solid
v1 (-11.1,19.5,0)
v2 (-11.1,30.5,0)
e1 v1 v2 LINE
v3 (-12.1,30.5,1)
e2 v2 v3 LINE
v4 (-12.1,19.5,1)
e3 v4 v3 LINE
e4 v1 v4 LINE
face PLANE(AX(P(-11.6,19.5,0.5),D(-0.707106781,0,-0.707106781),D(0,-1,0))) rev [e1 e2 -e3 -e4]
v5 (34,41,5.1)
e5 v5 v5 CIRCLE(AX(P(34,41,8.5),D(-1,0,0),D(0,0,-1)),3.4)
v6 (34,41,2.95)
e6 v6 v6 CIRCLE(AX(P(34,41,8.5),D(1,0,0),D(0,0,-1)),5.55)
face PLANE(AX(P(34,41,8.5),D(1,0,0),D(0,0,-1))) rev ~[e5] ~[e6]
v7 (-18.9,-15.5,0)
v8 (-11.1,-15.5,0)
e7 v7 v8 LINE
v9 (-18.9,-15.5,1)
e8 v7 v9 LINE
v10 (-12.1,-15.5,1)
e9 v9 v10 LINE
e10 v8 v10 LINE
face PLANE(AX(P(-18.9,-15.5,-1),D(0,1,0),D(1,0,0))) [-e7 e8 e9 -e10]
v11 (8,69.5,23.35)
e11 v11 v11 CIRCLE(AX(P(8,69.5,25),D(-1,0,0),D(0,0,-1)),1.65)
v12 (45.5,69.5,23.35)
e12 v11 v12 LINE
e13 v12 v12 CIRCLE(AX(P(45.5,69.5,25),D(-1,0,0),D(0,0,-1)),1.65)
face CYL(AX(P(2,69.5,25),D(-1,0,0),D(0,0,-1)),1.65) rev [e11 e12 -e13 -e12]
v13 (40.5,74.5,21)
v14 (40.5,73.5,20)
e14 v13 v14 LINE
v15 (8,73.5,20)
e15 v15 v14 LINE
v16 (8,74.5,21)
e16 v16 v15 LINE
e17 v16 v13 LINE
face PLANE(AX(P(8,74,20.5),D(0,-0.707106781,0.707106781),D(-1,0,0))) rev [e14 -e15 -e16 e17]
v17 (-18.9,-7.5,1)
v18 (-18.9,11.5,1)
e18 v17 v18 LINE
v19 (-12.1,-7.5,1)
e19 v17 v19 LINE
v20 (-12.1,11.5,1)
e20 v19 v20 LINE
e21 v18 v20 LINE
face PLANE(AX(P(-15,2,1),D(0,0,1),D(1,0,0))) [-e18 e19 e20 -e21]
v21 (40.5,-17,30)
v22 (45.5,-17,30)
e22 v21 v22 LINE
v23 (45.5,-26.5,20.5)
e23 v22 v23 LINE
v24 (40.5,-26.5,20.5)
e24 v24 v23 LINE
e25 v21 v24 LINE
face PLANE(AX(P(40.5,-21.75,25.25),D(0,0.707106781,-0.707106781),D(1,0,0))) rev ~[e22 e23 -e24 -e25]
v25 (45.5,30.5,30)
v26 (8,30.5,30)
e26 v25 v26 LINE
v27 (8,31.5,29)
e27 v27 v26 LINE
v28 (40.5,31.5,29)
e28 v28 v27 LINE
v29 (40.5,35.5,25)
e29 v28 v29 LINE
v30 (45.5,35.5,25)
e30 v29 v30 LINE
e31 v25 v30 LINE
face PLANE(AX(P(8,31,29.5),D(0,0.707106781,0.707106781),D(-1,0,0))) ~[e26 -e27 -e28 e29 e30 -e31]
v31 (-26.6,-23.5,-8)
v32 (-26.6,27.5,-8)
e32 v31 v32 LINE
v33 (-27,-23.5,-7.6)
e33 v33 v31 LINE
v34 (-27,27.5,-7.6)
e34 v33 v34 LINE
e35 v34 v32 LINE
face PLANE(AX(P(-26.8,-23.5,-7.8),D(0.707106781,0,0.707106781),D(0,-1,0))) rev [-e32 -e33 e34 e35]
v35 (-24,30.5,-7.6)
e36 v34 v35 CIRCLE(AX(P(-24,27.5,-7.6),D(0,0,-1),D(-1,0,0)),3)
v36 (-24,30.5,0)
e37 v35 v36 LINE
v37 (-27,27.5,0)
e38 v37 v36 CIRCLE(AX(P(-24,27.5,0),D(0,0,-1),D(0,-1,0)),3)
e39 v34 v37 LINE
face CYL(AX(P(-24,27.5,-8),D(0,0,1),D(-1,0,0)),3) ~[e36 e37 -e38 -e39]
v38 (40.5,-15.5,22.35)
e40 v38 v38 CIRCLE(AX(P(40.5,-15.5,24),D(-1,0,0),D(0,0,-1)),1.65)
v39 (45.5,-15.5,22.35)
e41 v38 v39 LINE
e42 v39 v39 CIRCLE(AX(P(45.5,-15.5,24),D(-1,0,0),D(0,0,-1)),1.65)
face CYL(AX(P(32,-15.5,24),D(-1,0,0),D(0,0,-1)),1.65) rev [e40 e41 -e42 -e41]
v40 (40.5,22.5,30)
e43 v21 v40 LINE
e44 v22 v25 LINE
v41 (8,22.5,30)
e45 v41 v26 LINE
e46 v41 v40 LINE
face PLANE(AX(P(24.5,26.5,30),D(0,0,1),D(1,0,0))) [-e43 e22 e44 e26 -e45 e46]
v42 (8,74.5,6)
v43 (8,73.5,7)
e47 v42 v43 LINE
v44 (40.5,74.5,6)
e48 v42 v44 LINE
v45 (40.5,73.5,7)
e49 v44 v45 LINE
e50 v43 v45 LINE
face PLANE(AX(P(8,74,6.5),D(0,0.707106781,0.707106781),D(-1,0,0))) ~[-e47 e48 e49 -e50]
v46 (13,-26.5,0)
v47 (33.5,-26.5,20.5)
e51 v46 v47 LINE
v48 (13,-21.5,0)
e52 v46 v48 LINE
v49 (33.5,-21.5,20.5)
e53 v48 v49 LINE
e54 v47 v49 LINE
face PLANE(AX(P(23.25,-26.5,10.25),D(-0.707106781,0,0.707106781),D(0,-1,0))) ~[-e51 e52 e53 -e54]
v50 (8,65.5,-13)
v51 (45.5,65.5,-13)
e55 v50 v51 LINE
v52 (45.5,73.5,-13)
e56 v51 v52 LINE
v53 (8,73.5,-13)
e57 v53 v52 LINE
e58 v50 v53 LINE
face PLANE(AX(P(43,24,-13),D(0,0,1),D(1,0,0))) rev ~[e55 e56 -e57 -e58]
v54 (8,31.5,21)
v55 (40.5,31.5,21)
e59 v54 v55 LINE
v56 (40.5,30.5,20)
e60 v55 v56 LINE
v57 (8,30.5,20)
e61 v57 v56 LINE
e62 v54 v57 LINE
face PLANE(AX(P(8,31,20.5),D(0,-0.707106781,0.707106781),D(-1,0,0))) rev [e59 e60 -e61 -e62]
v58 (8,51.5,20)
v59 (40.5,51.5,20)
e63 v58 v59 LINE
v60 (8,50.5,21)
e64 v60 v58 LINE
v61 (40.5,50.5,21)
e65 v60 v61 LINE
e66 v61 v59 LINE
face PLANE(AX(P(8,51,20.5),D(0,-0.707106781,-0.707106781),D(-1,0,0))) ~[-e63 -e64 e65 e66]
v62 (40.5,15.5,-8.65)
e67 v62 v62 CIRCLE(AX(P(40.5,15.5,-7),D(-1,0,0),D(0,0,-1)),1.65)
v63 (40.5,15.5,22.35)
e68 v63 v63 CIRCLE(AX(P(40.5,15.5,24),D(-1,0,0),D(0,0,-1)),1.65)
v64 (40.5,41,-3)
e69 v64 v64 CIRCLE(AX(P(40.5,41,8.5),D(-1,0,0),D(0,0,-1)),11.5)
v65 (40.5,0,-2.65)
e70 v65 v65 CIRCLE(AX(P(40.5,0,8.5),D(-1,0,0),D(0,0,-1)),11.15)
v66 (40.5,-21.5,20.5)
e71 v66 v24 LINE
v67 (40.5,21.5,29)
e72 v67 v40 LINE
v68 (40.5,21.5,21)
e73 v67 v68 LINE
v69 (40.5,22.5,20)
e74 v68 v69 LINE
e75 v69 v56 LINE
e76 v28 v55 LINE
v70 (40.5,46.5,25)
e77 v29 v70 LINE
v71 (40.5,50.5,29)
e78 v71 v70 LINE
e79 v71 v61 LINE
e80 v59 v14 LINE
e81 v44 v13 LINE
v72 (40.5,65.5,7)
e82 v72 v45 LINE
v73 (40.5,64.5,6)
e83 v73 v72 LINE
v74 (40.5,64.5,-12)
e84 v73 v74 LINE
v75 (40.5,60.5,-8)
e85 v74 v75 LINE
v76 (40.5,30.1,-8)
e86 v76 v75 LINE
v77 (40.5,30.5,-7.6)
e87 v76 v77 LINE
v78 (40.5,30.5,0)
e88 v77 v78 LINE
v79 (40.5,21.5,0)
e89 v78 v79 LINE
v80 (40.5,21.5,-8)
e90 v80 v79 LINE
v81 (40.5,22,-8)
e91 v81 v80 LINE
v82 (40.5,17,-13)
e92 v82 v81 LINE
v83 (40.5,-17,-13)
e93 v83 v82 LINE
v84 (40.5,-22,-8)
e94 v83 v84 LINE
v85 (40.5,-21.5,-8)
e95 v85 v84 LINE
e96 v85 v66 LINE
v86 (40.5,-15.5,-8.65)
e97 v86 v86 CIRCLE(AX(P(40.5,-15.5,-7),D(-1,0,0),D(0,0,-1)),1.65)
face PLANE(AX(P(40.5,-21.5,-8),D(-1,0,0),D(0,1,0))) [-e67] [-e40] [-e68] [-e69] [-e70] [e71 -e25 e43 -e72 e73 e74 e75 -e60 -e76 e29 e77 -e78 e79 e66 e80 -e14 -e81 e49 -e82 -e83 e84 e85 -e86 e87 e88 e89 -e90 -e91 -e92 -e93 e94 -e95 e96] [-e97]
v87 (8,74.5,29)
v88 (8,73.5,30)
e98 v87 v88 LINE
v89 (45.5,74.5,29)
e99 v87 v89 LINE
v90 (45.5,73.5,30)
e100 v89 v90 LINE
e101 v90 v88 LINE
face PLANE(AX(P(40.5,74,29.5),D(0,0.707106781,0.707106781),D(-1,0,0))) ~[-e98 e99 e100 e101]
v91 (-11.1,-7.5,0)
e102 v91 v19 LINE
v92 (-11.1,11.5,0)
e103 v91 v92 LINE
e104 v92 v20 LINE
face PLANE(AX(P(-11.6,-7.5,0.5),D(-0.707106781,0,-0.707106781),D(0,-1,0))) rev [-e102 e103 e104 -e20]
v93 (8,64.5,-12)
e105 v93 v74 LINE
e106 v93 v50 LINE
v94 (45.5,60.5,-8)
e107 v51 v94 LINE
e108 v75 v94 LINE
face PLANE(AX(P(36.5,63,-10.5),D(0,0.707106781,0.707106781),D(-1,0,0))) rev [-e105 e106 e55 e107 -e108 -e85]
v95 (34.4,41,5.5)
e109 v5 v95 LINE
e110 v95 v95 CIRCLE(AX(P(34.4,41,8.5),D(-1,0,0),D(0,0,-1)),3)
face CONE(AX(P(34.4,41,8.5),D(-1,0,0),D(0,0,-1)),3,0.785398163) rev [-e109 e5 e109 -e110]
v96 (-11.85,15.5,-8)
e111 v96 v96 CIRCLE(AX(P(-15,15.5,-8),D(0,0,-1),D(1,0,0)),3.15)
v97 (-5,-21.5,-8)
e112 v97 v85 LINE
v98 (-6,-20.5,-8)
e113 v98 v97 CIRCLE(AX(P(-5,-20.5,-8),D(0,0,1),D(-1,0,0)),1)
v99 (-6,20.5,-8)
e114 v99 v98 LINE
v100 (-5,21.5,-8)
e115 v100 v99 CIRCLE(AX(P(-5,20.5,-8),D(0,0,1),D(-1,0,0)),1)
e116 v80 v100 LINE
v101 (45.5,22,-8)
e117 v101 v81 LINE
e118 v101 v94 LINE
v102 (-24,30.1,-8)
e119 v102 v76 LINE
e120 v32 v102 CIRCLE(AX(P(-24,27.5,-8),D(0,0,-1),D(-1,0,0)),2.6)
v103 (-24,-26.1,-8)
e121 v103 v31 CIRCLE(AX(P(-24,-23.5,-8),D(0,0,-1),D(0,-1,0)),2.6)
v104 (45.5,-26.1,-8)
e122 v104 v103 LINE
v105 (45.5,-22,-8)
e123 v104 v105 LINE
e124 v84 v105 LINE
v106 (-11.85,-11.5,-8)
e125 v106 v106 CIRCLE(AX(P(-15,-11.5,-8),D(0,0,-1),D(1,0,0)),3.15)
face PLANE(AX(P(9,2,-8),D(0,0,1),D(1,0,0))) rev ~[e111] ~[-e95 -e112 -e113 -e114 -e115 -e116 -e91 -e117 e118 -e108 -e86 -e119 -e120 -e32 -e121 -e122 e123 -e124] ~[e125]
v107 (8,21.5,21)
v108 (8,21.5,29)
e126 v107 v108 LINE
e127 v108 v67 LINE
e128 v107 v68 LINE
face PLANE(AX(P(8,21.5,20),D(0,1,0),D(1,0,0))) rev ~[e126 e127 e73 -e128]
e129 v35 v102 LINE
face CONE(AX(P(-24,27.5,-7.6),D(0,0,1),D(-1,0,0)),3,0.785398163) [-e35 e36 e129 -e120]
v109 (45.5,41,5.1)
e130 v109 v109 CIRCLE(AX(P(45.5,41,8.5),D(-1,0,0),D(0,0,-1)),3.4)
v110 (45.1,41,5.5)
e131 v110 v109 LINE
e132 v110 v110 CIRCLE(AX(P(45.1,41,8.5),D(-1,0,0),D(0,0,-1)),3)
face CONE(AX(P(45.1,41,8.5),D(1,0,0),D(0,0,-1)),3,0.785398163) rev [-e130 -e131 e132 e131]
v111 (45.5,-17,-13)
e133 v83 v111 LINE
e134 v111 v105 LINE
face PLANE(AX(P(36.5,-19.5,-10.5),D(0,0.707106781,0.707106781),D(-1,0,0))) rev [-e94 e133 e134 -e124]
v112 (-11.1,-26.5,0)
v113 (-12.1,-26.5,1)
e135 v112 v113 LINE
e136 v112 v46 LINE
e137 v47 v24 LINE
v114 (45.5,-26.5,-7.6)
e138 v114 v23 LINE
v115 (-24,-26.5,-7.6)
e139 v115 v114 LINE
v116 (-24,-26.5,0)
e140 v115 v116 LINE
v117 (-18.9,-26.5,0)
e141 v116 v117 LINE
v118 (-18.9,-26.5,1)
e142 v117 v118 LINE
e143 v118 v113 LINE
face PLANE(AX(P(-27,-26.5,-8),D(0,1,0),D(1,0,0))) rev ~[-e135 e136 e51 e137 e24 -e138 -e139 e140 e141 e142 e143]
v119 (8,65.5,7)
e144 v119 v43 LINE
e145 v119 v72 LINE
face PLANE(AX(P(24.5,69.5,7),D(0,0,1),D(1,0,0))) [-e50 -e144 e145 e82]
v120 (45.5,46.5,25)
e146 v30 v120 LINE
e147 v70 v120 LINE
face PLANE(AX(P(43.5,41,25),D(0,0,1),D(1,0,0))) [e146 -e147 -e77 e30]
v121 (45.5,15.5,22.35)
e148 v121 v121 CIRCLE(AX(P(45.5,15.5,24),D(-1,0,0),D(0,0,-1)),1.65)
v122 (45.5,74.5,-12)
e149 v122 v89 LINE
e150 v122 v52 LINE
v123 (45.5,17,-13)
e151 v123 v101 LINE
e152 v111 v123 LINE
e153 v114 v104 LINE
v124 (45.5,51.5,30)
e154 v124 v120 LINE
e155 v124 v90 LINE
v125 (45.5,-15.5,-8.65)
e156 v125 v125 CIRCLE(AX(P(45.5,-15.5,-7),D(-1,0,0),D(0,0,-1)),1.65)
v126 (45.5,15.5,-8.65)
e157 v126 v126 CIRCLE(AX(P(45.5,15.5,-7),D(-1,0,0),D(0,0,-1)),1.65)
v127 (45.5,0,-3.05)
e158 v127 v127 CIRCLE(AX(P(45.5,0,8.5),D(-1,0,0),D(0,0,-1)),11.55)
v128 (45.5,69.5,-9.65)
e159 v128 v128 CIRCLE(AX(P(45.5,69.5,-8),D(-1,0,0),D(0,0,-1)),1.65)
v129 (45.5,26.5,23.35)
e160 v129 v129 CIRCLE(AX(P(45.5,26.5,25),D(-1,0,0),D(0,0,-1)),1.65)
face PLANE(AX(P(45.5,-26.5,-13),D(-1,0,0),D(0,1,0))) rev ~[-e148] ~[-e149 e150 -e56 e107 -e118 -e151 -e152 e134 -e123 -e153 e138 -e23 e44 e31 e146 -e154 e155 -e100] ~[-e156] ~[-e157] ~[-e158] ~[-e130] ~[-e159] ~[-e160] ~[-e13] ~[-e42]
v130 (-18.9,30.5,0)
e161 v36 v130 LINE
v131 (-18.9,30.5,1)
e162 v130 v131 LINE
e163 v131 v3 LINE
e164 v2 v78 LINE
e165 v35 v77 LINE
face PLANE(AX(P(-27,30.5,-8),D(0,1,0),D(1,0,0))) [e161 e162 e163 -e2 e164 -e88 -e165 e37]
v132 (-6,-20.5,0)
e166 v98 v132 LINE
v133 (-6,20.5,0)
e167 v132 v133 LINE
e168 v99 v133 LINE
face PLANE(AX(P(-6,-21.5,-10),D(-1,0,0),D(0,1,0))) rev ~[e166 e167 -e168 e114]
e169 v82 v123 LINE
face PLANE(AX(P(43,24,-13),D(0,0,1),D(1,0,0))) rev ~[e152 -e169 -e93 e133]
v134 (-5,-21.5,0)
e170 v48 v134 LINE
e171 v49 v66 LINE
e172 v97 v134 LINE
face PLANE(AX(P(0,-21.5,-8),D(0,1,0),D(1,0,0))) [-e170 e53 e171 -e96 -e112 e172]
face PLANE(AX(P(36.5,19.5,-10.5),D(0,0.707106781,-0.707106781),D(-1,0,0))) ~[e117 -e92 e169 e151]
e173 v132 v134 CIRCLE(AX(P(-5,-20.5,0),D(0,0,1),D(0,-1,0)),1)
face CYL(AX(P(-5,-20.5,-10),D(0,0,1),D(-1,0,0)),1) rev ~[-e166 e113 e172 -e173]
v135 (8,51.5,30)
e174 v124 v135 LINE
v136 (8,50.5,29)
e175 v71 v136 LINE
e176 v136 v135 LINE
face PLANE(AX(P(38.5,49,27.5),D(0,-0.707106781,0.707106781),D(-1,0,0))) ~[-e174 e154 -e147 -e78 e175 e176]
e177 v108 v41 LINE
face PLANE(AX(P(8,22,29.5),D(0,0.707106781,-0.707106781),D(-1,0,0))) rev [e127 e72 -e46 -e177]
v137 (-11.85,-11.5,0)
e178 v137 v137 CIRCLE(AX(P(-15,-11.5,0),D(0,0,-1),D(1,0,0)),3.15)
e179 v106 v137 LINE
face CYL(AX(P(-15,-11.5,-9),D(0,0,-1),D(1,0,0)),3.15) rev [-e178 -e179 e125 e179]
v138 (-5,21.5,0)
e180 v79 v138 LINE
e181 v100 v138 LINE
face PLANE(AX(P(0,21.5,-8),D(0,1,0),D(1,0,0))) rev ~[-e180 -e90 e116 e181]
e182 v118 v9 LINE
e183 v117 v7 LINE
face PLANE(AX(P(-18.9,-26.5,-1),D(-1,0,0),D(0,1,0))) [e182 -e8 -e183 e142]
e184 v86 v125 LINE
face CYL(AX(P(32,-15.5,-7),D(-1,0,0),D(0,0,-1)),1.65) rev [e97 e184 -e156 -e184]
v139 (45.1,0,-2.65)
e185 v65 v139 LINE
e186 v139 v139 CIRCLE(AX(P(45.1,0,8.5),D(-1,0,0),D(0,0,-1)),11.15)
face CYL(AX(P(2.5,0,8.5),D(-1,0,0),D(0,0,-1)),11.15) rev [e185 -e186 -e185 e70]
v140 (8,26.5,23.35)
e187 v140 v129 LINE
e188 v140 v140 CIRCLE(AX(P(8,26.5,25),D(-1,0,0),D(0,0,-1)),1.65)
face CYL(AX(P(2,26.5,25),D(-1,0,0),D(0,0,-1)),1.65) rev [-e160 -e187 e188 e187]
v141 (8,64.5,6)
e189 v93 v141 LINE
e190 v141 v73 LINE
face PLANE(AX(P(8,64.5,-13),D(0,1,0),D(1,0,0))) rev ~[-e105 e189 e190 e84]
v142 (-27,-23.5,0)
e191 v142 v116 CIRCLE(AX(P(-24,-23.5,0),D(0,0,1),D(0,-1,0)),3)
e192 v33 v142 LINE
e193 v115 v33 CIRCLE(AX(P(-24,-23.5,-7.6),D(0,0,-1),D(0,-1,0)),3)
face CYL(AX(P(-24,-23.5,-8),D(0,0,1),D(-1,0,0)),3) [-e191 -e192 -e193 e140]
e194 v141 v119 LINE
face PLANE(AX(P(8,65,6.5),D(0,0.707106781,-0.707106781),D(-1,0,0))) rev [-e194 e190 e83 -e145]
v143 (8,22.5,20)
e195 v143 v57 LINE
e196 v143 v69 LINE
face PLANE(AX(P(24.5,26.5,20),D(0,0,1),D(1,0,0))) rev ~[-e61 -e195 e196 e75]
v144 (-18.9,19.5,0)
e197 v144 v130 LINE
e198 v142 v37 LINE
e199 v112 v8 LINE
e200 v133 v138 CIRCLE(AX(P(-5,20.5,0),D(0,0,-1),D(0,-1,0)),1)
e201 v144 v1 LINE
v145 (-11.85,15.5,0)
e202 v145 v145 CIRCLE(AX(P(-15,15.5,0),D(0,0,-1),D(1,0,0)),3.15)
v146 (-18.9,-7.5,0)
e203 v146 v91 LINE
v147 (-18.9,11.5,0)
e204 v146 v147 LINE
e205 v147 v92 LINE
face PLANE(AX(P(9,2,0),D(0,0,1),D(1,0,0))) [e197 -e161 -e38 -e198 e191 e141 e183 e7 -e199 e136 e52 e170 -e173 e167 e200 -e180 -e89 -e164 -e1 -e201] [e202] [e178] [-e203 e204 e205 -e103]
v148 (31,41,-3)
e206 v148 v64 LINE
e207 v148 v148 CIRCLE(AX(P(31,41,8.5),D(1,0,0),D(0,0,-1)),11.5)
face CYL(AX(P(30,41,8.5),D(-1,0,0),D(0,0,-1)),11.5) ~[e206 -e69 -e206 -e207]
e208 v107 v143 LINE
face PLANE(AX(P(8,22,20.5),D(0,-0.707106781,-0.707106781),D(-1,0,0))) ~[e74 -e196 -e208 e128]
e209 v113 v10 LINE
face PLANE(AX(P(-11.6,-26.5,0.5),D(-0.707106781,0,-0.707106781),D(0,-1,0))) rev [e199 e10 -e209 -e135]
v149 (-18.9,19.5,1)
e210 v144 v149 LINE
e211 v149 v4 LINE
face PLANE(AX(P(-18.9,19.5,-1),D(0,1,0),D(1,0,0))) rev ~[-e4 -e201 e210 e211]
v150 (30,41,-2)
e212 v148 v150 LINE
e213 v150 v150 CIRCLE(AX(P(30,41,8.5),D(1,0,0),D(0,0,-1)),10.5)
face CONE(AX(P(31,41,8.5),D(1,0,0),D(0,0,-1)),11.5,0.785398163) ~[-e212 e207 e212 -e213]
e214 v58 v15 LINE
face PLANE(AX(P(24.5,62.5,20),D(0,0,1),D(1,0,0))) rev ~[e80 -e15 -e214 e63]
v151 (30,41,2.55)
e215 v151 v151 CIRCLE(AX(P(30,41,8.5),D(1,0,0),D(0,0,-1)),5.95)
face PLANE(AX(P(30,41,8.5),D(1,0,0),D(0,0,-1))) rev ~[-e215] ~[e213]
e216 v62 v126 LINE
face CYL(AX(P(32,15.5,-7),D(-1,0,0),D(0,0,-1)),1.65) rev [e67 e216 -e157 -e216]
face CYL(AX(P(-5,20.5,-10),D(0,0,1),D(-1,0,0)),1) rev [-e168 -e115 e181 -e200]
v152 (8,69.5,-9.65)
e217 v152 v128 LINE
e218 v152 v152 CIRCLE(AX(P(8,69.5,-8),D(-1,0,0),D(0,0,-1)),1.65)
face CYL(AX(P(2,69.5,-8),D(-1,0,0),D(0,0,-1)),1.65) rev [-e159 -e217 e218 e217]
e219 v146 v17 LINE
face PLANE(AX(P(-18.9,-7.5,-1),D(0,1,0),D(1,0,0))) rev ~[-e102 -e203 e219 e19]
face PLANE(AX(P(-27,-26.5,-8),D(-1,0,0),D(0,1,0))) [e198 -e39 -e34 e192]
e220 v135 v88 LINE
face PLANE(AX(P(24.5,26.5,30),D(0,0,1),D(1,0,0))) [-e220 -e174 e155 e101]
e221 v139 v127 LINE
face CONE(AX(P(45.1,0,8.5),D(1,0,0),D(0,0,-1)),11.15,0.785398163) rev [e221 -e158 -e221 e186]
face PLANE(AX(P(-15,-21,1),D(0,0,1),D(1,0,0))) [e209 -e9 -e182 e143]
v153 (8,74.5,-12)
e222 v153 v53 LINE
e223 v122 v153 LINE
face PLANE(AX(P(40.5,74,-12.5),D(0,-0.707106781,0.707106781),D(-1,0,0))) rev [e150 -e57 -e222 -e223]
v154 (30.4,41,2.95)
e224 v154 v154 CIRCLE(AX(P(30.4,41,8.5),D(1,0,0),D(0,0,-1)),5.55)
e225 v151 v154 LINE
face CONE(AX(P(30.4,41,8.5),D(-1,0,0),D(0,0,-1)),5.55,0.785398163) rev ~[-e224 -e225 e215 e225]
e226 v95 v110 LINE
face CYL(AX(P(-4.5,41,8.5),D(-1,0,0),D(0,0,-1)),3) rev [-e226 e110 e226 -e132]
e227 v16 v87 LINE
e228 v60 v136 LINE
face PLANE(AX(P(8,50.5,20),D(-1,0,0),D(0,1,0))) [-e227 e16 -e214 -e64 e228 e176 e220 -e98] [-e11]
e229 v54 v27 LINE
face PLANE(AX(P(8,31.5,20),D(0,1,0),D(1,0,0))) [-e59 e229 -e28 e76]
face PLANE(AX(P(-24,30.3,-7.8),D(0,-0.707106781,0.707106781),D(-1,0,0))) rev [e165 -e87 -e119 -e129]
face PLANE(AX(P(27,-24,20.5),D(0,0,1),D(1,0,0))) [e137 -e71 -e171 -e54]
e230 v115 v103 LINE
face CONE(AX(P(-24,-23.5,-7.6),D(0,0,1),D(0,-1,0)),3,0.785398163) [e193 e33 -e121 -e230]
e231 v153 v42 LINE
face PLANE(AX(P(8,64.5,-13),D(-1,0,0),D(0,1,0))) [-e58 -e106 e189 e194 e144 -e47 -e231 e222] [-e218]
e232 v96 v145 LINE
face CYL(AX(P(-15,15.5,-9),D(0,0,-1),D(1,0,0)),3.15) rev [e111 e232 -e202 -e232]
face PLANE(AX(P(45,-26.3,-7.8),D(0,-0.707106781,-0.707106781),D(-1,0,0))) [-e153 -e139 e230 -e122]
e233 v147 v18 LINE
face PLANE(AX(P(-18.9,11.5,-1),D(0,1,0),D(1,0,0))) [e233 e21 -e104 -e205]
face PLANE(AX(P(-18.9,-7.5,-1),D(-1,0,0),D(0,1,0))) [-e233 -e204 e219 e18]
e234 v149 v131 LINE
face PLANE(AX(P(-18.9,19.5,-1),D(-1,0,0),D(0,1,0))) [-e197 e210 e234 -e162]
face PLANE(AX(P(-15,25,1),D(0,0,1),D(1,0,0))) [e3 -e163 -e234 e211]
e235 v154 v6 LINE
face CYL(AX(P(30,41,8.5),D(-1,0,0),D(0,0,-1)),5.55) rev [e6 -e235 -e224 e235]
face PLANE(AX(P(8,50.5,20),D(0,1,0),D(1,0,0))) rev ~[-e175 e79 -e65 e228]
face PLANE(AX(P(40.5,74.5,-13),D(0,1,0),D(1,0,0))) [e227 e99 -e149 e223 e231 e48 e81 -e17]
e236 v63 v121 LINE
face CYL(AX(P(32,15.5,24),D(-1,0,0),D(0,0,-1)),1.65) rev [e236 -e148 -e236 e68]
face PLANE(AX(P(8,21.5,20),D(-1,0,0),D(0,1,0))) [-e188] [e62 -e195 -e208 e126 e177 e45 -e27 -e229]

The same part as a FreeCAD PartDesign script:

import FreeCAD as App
import Part
import Sketcher

V = App.Vector


def edges_at(feature, points):
    """Names of the edges that pass closest to the given points."""
    edges = feature.Shape.Edges
    near = lambda p: min(range(len(edges)), key=lambda i: edges[i].distToShape(Part.Vertex(*p))[0])
    return sorted({f"Edge{near(p) + 1}" for p in points})


def add_polygon(sketch, points):
    """Adds a closed chain of lines whose ends are joined by coincident constraints."""
    first, n = sketch.GeometryCount, len(points)
    for a, b in zip(points, points[1:] + points[:1]):
        sketch.addGeometry(Part.LineSegment(App.Vector(*a, 0), App.Vector(*b, 0)), False)
    for i in range(n):
        sketch.addConstraint(Sketcher.Constraint("Coincident", first + i, 2, first + (i + 1) % n, 1))

doc = App.newDocument("Part")
body = doc.addObject("PartDesign::Body", "Body")

# Sketch on XY plane
sketch1 = body.newObject("Sketcher::SketchObject", "Sketch")
sketch1.AttachmentSupport = (doc.getObject("XY_Plane"), [""])
sketch1.MapMode = "FlatFace"
sketch1.AttachmentOffset = App.Placement(V(0, 0, -10), App.Rotation())
add_polygon(sketch1, [(-6, 22), (-6, -22), (8, -22), (8, 22)])  # lines 0-3
sketch1.addConstraint([
    Sketcher.Constraint("Vertical", 0),
    Sketcher.Constraint("Horizontal", 1),
    Sketcher.Constraint("Vertical", 2),
    Sketcher.Constraint("Horizontal", 3),
    Sketcher.Constraint("DistanceX", 1, 1, 1, 2, 14.0),
    Sketcher.Constraint("DistanceY", 0, 2, 0, 1, 43.0),
    Sketcher.Constraint("DistanceX", 0, 2, -1, 1, 6.0),
    Sketcher.Constraint("DistanceY", 0, 2, -1, 1, 21.5),
])
pad1 = body.newObject("PartDesign::Pad", "Pad")
pad1.Profile = sketch1
pad1.Length = 10
doc.recompute()

fillet = body.newObject("PartDesign::Fillet", "Fillet")
fillet.Base = (pad1, edges_at(pad1, [(-6, -21.5, -5), (-6, 21.5, -5)]))
fillet.Radius = 1
body2 = doc.addObject("PartDesign::Body", "Body001")

# Sketch on XY plane
sketch2 = body2.newObject("Sketcher::SketchObject", "Sketch001")
sketch2.AttachmentSupport = (doc.getObject("XY_Plane001"), [""])
sketch2.MapMode = "FlatFace"
sketch2.AttachmentOffset = App.Placement(V(0, 0, 35), App.Rotation())
add_polygon(sketch2, [(38, 52), (38, 30), (48, 30), (48, 52)])  # lines 0-3
sketch2.addConstraint([
    Sketcher.Constraint("Vertical", 0),
    Sketcher.Constraint("Horizontal", 1),
    Sketcher.Constraint("Vertical", 2),
    Sketcher.Constraint("Horizontal", 3),
    Sketcher.Constraint("DistanceX", 1, 1, 1, 2, 10.0),
    Sketcher.Constraint("DistanceY", 0, 2, 0, 1, 21.0),
    Sketcher.Constraint("DistanceX", -1, 1, 0, 2, 38.5),
    Sketcher.Constraint("DistanceY", -1, 1, 0, 2, 30.5),
])
pad2 = body2.newObject("PartDesign::Pad", "Pad001")
pad2.Profile = sketch2
pad2.Length = 10
doc.recompute()

chamfer = body2.newObject("PartDesign::Chamfer", "Chamfer")
chamfer.Base = (pad2, edges_at(pad2, [(43.5, 30.5, 35), (43.5, 51.5, 35)]))
chamfer.Size = 5
body3 = doc.addObject("PartDesign::Body", "Body002")
doc.recompute()

body2.Placement = App.Placement(V(0, 0, -10), App.Rotation(V(0, 0, 1), 0))
boolean = body3.newObject("PartDesign::Boolean", "Boolean")
boolean.Type = "Fuse"
boolean.addObjects([body2])
body4 = doc.addObject("PartDesign::Body", "Body003")

# Sketch on YZ plane
sketch3 = body4.newObject("Sketcher::SketchObject", "Sketch002")
sketch3.AttachmentSupport = (doc.getObject("YZ_Plane003"), [""])
sketch3.MapMode = "FlatFace"
sketch3.AttachmentOffset = App.Placement(V(0, 0, 2), App.Rotation())
sketch3.addGeometry(Part.Circle(V(26.5, 25, 0), V(0, 0, 1), 1.6), False)
sketch3.addConstraint([
    Sketcher.Constraint("Diameter", 0, 3.3),
    Sketcher.Constraint("DistanceY", -1, 1, 0, 3, 25.0),
    Sketcher.Constraint("DistanceX", -1, 1, 0, 3, 26.5),
])
pad3 = body4.newObject("PartDesign::Pad", "Pad002")
pad3.Profile = sketch3
pad3.Length = 110
body5 = doc.addObject("PartDesign::Body", "Body004")

# Sketch on YZ plane
sketch4 = body5.newObject("Sketcher::SketchObject", "Sketch003")
sketch4.AttachmentSupport = (doc.getObject("YZ_Plane004"), [""])
sketch4.MapMode = "FlatFace"
sketch4.AttachmentOffset = App.Placement(V(0, 0, 2), App.Rotation())
sketch4.addGeometry(Part.Circle(V(69.5, 25, 0), V(0, 0, 1), 1.6), False)
sketch4.addConstraint([
    Sketcher.Constraint("Diameter", 0, 3.3),
    Sketcher.Constraint("DistanceY", -1, 1, 0, 3, 25.0),
    Sketcher.Constraint("DistanceX", -1, 1, 0, 3, 69.5),
])
pad4 = body5.newObject("PartDesign::Pad", "Pad003")
pad4.Profile = sketch4
pad4.Length = 110
body6 = doc.addObject("PartDesign::Body", "Body005")
body6.AllowCompound = True

# Sketch on YZ plane
sketch5 = body6.newObject("Sketcher::SketchObject", "Sketch004")
sketch5.AttachmentSupport = (doc.getObject("YZ_Plane005"), [""])
sketch5.MapMode = "FlatFace"
sketch5.AttachmentOffset = App.Placement(V(0, 0, 2), App.Rotation())
sketch5.addGeometry(Part.Circle(V(69.5, -8, 0), V(0, 0, 1), 1.6), False)
sketch5.addConstraint([
    Sketcher.Constraint("Diameter", 0, 3.3),
    Sketcher.Constraint("DistanceY", 0, 3, -1, 1, 8.0),
    Sketcher.Constraint("DistanceX", -1, 1, 0, 3, 69.5),
])
pad5 = body6.newObject("PartDesign::Pad", "Pad004")
pad5.Profile = sketch5
pad5.Length = 110
doc.recompute()

boolean2 = body6.newObject("PartDesign::Boolean", "Boolean001")
boolean2.Type = "Fuse"
boolean2.addObjects([body4])
doc.recompute()

boolean3 = body6.newObject("PartDesign::Boolean", "Boolean002")
boolean3.Type = "Fuse"
boolean3.addObjects([body5])
body7 = doc.addObject("PartDesign::Body", "Body006")

# Sketch on XY plane
sketch6 = body7.newObject("Sketcher::SketchObject", "Sketch005")
sketch6.AttachmentSupport = (doc.getObject("XY_Plane006"), [""])
sketch6.MapMode = "FlatFace"
sketch6.AttachmentOffset = App.Placement(V(0, 0, 20), App.Rotation())
add_polygon(sketch6, [(8, 74), (8, 50), (41, 50), (41, 74)])  # lines 0-3
sketch6.addConstraint([
    Sketcher.Constraint("Vertical", 0),
    Sketcher.Constraint("Horizontal", 1),
    Sketcher.Constraint("Vertical", 2),
    Sketcher.Constraint("Horizontal", 3),
    Sketcher.Constraint("DistanceX", 1, 1, 1, 2, 33.0),
    Sketcher.Constraint("DistanceY", 0, 2, 0, 1, 24.0),
    Sketcher.Constraint("DistanceX", -1, 1, 0, 2, 8.0),
    Sketcher.Constraint("DistanceY", -1, 1, 0, 2, 50.5),
])
pad6 = body7.newObject("PartDesign::Pad", "Pad005")
pad6.Profile = sketch6
pad6.Length = 10
doc.recompute()

chamfer2 = body7.newObject("PartDesign::Chamfer", "Chamfer001")
chamfer2.Base = (pad6, edges_at(pad6, [
    (24.5, 50.5, 20),
    (24.5, 50.5, 30),
    (24.5, 74.5, 20),
    (24.5, 74.5, 30),
]))
chamfer2.Size = 1
body8 = doc.addObject("PartDesign::Body", "Body007")

# Sketch on XY plane
sketch7 = body8.newObject("Sketcher::SketchObject", "Sketch006")
sketch7.AttachmentSupport = (doc.getObject("XY_Plane007"), [""])
sketch7.MapMode = "FlatFace"
sketch7.AttachmentOffset = App.Placement(V(0, 0, 20), App.Rotation())
add_polygon(sketch7, [(8, 32), (8, 22), (41, 22), (41, 32)])  # lines 0-3
sketch7.addConstraint([
    Sketcher.Constraint("Vertical", 0),
    Sketcher.Constraint("Horizontal", 1),
    Sketcher.Constraint("Vertical", 2),
    Sketcher.Constraint("Horizontal", 3),
    Sketcher.Constraint("DistanceX", 1, 1, 1, 2, 33.0),
    Sketcher.Constraint("DistanceY", 0, 2, 0, 1, 10.0),
    Sketcher.Constraint("DistanceX", -1, 1, 0, 2, 8.0),
    Sketcher.Constraint("DistanceY", -1, 1, 0, 2, 21.5),
])
pad7 = body8.newObject("PartDesign::Pad", "Pad006")
pad7.Profile = sketch7
pad7.Length = 10
doc.recompute()

chamfer3 = body8.newObject("PartDesign::Chamfer", "Chamfer002")
chamfer3.Base = (pad7, edges_at(pad7, [
    (24.5, 21.5, 20),
    (24.5, 21.5, 30),
    (24.5, 31.5, 20),
    (24.5, 31.5, 30),
]))
chamfer3.Size = 1
body9 = doc.addObject("PartDesign::Body", "Body008")
body9.AllowCompound = True

# Sketch on XY plane
sketch8 = body9.newObject("Sketcher::SketchObject", "Sketch007")
sketch8.AttachmentSupport = (doc.getObject("XY_Plane008"), [""])
sketch8.MapMode = "FlatFace"
sketch8.AttachmentOffset = App.Placement(V(0, 0, -13), App.Rotation())
add_polygon(sketch8, [(8, 74), (8, 64), (41, 64), (41, 74)])  # lines 0-3
sketch8.addConstraint([
    Sketcher.Constraint("Vertical", 0),
    Sketcher.Constraint("Horizontal", 1),
    Sketcher.Constraint("Vertical", 2),
    Sketcher.Constraint("Horizontal", 3),
    Sketcher.Constraint("DistanceX", 1, 1, 1, 2, 33.0),
    Sketcher.Constraint("DistanceY", 0, 2, 0, 1, 10.0),
    Sketcher.Constraint("DistanceX", -1, 1, 0, 2, 8.0),
    Sketcher.Constraint("DistanceY", -1, 1, 0, 2, 64.5),
])
pad8 = body9.newObject("PartDesign::Pad", "Pad007")
pad8.Profile = sketch8
pad8.Length = 20
doc.recompute()

chamfer4 = body9.newObject("PartDesign::Chamfer", "Chamfer003")
chamfer4.Base = (pad8, edges_at(pad8, [
    (24.5, 64.5, -13),
    (24.5, 64.5, 7),
    (24.5, 74.5, -13),
    (24.5, 74.5, 7),
]))
chamfer4.Size = 1
doc.recompute()

boolean4 = body9.newObject("PartDesign::Boolean", "Boolean003")
boolean4.Type = "Fuse"
boolean4.addObjects([body7])
doc.recompute()

boolean5 = body9.newObject("PartDesign::Boolean", "Boolean004")
boolean5.Type = "Fuse"
boolean5.addObjects([body8])
body10 = doc.addObject("PartDesign::Body", "Body009")

# Sketch on YZ plane
sketch9 = body10.newObject("Sketcher::SketchObject", "Sketch008")
sketch9.AttachmentSupport = (doc.getObject("YZ_Plane009"), [""])
sketch9.MapMode = "FlatFace"
sketch9.AttachmentOffset = App.Placement(V(0, 0, -4.5), App.Rotation())
sketch9.addGeometry(Part.Circle(V(41, 8.5, 0), V(0, 0, 1), 3), False)
sketch9.addConstraint([
    Sketcher.Constraint("Diameter", 0, 6.0),
    Sketcher.Constraint("DistanceX", -1, 1, 0, 3, 41.0),
    Sketcher.Constraint("DistanceY", -1, 1, 0, 3, 8.5),
])
pad9 = body10.newObject("PartDesign::Pad", "Pad008")
pad9.Profile = sketch9
pad9.Length = 83
body11 = doc.addObject("PartDesign::Body", "Body010")

# Sketch on YZ plane
sketch10 = body11.newObject("Sketcher::SketchObject", "Sketch009")
sketch10.AttachmentSupport = (doc.getObject("YZ_Plane010"), [""])
sketch10.MapMode = "FlatFace"
sketch10.AttachmentOffset = App.Placement(V(0, 0, 30), App.Rotation())
sketch10.addGeometry(Part.Circle(V(41, 8, 0), V(0, 0, 1), 6), False)
sketch10.addConstraint([
    Sketcher.Constraint("Diameter", 0, 11.1),
    Sketcher.Constraint("DistanceX", -1, 1, 0, 3, 41.0),
    Sketcher.Constraint("DistanceY", -1, 1, 0, 3, 8.5),
])
pad10 = body11.newObject("PartDesign::Pad", "Pad009")
pad10.Profile = sketch10
pad10.Length = 4
body12 = doc.addObject("PartDesign::Body", "Body011")

# Sketch on YZ plane
sketch11 = body12.newObject("Sketcher::SketchObject", "Sketch010")
sketch11.AttachmentSupport = (doc.getObject("YZ_Plane011"), [""])
sketch11.MapMode = "FlatFace"
sketch11.AttachmentOffset = App.Placement(V(0, 0, 30), App.Rotation())
sketch11.addGeometry(Part.Circle(V(41, 8, 0), V(0, 0, 1), 12), False)
sketch11.addConstraint([
    Sketcher.Constraint("Diameter", 0, 23.0),
    Sketcher.Constraint("DistanceX", -1, 1, 0, 3, 41.0),
    Sketcher.Constraint("DistanceY", -1, 1, 0, 3, 8.5),
])
pad11 = body12.newObject("PartDesign::Pad", "Pad010")
pad11.Profile = sketch11
pad11.Length = 12
doc.recompute()

chamfer5 = body12.newObject("PartDesign::Chamfer", "Chamfer004")
chamfer5.Base = (pad11, edges_at(pad11, [(30, 41, 20)]))
chamfer5.Size = 1
doc.recompute()

boolean6 = body12.newObject("PartDesign::Boolean", "Boolean005")
boolean6.Type = "Cut"
boolean6.addObjects([body11])
doc.recompute()

chamfer6 = body12.newObject("PartDesign::Chamfer", "Chamfer005")
chamfer6.Base = (boolean6, edges_at(boolean6, [(30, 41, 14.05)]))
chamfer6.Size = 0.4
body13 = doc.addObject("PartDesign::Body", "Body012")

# Sketch on YZ plane
sketch12 = body13.newObject("Sketcher::SketchObject", "Sketch011")
sketch12.AttachmentSupport = (doc.getObject("YZ_Plane012"), [""])
sketch12.MapMode = "FlatFace"
sketch12.AttachmentOffset = App.Placement(V(0, 0, 32), App.Rotation())
sketch12.addGeometry(Part.Circle(V(-15.5, -7, 0), V(0, 0, 1), 1.6), False)
sketch12.addConstraint([
    Sketcher.Constraint("Diameter", 0, 3.3),
    Sketcher.Constraint("DistanceY", 0, 3, -1, 1, 7.0),
    Sketcher.Constraint("DistanceX", 0, 3, -1, 1, 15.5),
])
pad12 = body13.newObject("PartDesign::Pad", "Pad011")
pad12.Profile = sketch12
pad12.Length = 30
body14 = doc.addObject("PartDesign::Body", "Body013")

# Sketch on YZ plane
sketch13 = body14.newObject("Sketcher::SketchObject", "Sketch012")
sketch13.AttachmentSupport = (doc.getObject("YZ_Plane013"), [""])
sketch13.MapMode = "FlatFace"
sketch13.AttachmentOffset = App.Placement(V(0, 0, 32), App.Rotation())
sketch13.addGeometry(Part.Circle(V(-15.5, 24, 0), V(0, 0, 1), 1.6), False)
sketch13.addConstraint([
    Sketcher.Constraint("Diameter", 0, 3.3),
    Sketcher.Constraint("DistanceY", -1, 1, 0, 3, 24.0),
    Sketcher.Constraint("DistanceX", 0, 3, -1, 1, 15.5),
])
pad13 = body14.newObject("PartDesign::Pad", "Pad012")
pad13.Profile = sketch13
pad13.Length = 30
body15 = doc.addObject("PartDesign::Body", "Body014")

# Sketch on YZ plane
sketch14 = body15.newObject("Sketcher::SketchObject", "Sketch013")
sketch14.AttachmentSupport = (doc.getObject("YZ_Plane014"), [""])
sketch14.MapMode = "FlatFace"
sketch14.AttachmentOffset = App.Placement(V(0, 0, 32), App.Rotation())
sketch14.addGeometry(Part.Circle(V(15.5, 24, 0), V(0, 0, 1), 1.6), False)
sketch14.addConstraint([
    Sketcher.Constraint("Diameter", 0, 3.3),
    Sketcher.Constraint("DistanceY", -1, 1, 0, 3, 24.0),
    Sketcher.Constraint("DistanceX", -1, 1, 0, 3, 15.5),
])
pad14 = body15.newObject("PartDesign::Pad", "Pad013")
pad14.Profile = sketch14
pad14.Length = 30
body16 = doc.addObject("PartDesign::Body", "Body015")
body16.AllowCompound = True

# Sketch on YZ plane
sketch15 = body16.newObject("Sketcher::SketchObject", "Sketch014")
sketch15.AttachmentSupport = (doc.getObject("YZ_Plane015"), [""])
sketch15.MapMode = "FlatFace"
sketch15.AttachmentOffset = App.Placement(V(0, 0, 32), App.Rotation())
sketch15.addGeometry(Part.Circle(V(15.5, -7, 0), V(0, 0, 1), 1.6), False)
sketch15.addConstraint([
    Sketcher.Constraint("Diameter", 0, 3.3),
    Sketcher.Constraint("DistanceY", 0, 3, -1, 1, 7.0),
    Sketcher.Constraint("DistanceX", -1, 1, 0, 3, 15.5),
])
pad15 = body16.newObject("PartDesign::Pad", "Pad014")
pad15.Profile = sketch15
pad15.Length = 30
doc.recompute()

boolean7 = body16.newObject("PartDesign::Boolean", "Boolean006")
boolean7.Type = "Fuse"
boolean7.addObjects([body13])
doc.recompute()

boolean8 = body16.newObject("PartDesign::Boolean", "Boolean007")
boolean8.Type = "Fuse"
boolean8.addObjects([body14])
doc.recompute()

boolean9 = body16.newObject("PartDesign::Boolean", "Boolean008")
boolean9.Type = "Fuse"
boolean9.addObjects([body15])
body17 = doc.addObject("PartDesign::Body", "Body016")

# Sketch on YZ plane
sketch16 = body17.newObject("Sketcher::SketchObject", "Sketch015")
sketch16.AttachmentSupport = (doc.getObject("YZ_Plane016"), [""])
sketch16.MapMode = "FlatFace"
sketch16.AttachmentOffset = App.Placement(V(0, 0, 2.5), App.Rotation())
sketch16.addGeometry(Part.Circle(V(0, 8, 0), V(0, 0, 1), 11), False)
sketch16.addConstraint([
    Sketcher.Constraint("PointOnObject", 0, 3, -2),
    Sketcher.Constraint("Diameter", 0, 22.3),
    Sketcher.Constraint("DistanceY", -1, 1, 0, 3, 8.5),
])
pad16 = body17.newObject("PartDesign::Pad", "Pad015")
pad16.Profile = sketch16
pad16.Length = 83
body18 = doc.addObject("PartDesign::Body", "Body017")

# Sketch on XY plane
sketch17 = body18.newObject("Sketcher::SketchObject", "Sketch016")
sketch17.AttachmentSupport = (doc.getObject("XY_Plane017"), [""])
sketch17.MapMode = "FlatFace"
sketch17.AttachmentOffset = App.Placement(V(0, 0, -8), App.Rotation())
add_polygon(sketch17, [(13, -22), (13, -26), (41, -26), (41, -22)])  # lines 0-3
sketch17.addConstraint([
    Sketcher.Constraint("Vertical", 0),
    Sketcher.Constraint("Horizontal", 1),
    Sketcher.Constraint("Vertical", 2),
    Sketcher.Constraint("Horizontal", 3),
    Sketcher.Constraint("DistanceX", 1, 1, 1, 2, 28.0),
    Sketcher.Constraint("DistanceY", 0, 2, 0, 1, 5.0),
    Sketcher.Constraint("DistanceX", -1, 1, 0, 2, 13.0),
    Sketcher.Constraint("DistanceY", 0, 2, -1, 1, 26.5),
])
pad17 = body18.newObject("PartDesign::Pad", "Pad016")
pad17.Profile = sketch17
pad17.Length = 28.5
doc.recompute()

chamfer7 = body18.newObject("PartDesign::Chamfer", "Chamfer006")
chamfer7.Base = (pad17, edges_at(pad17, [(27, -26.5, -8)]))
chamfer7.Size = 0.5
doc.recompute()

chamfer8 = body18.newObject("PartDesign::Chamfer", "Chamfer007")
chamfer8.Base = (chamfer7, edges_at(chamfer7, [(13, -24, 20.5)]))
chamfer8.Size = 20.5
body19 = doc.addObject("PartDesign::Body", "Body018")

# Sketch on XY plane
sketch18 = body19.newObject("Sketcher::SketchObject", "Sketch017")
sketch18.AttachmentSupport = (doc.getObject("XY_Plane018"), [""])
sketch18.MapMode = "FlatFace"
sketch18.AttachmentOffset = App.Placement(V(0, 0, -18), App.Rotation())
add_polygon(sketch18, [(36, 66), (36, 17), (46, 17), (46, 66)])  # lines 0-3
sketch18.addConstraint([
    Sketcher.Constraint("Vertical", 0),
    Sketcher.Constraint("Horizontal", 1),
    Sketcher.Constraint("Vertical", 2),
    Sketcher.Constraint("Horizontal", 3),
    Sketcher.Constraint("DistanceX", 1, 1, 1, 2, 10.0),
    Sketcher.Constraint("DistanceY", 0, 2, 0, 1, 48.5),
    Sketcher.Constraint("DistanceY", -1, 1, 0, 2, 17.0),
    Sketcher.Constraint("DistanceX", -1, 1, 0, 2, 36.5),
])
pad18 = body19.newObject("PartDesign::Pad", "Pad017")
pad18.Profile = sketch18
pad18.Length = 10
doc.recompute()

chamfer9 = body19.newObject("PartDesign::Chamfer", "Chamfer008")
chamfer9.Base = (pad18, edges_at(pad18, [(41.5, 17, -8), (41.5, 65.5, -8)]))
chamfer9.Size = 5
body20 = doc.addObject("PartDesign::Body", "Body019")

# Sketch on XY plane
sketch19 = body20.newObject("Sketcher::SketchObject", "Sketch018")
sketch19.AttachmentSupport = (doc.getObject("XY_Plane019"), [""])
sketch19.MapMode = "FlatFace"
sketch19.AttachmentOffset = App.Placement(V(0, 0, -18), App.Rotation())
add_polygon(sketch19, [(36, -17), (36, -76), (46, -76), (46, -17)])  # lines 0-3
sketch19.addConstraint([
    Sketcher.Constraint("Vertical", 0),
    Sketcher.Constraint("Horizontal", 1),
    Sketcher.Constraint("Vertical", 2),
    Sketcher.Constraint("Horizontal", 3),
    Sketcher.Constraint("DistanceX", 1, 1, 1, 2, 10.0),
    Sketcher.Constraint("DistanceY", 0, 2, 0, 1, 58.5),
    Sketcher.Constraint("DistanceY", 2, 2, -1, 1, 17.0),
    Sketcher.Constraint("DistanceX", -1, 1, 0, 2, 36.5),
])
pad19 = body20.newObject("PartDesign::Pad", "Pad018")
pad19.Profile = sketch19
pad19.Length = 10
doc.recompute()

chamfer10 = body20.newObject("PartDesign::Chamfer", "Chamfer009")
chamfer10.Base = (pad19, edges_at(pad19, [(41.5, -17, -8)]))
chamfer10.Size = 5
body21 = doc.addObject("PartDesign::Body", "Body020")

# Sketch on XY plane
sketch20 = body21.newObject("Sketcher::SketchObject", "Sketch019")
sketch20.AttachmentSupport = (doc.getObject("XY_Plane020"), [""])
sketch20.MapMode = "FlatFace"
sketch20.AttachmentOffset = App.Placement(V(0, 0, -13), App.Rotation())
add_polygon(sketch20, [(40, 74), (40, -26), (46, -26), (46, 74)])  # lines 0-3
sketch20.addConstraint([
    Sketcher.Constraint("Vertical", 0),
    Sketcher.Constraint("Horizontal", 1),
    Sketcher.Constraint("Vertical", 2),
    Sketcher.Constraint("Horizontal", 3),
    Sketcher.Constraint("DistanceX", 1, 1, 1, 2, 5.0),
    Sketcher.Constraint("DistanceY", 0, 2, 0, 1, 101.0),
    Sketcher.Constraint("DistanceX", -1, 1, 0, 2, 40.5),
    Sketcher.Constraint("DistanceY", 0, 2, -1, 1, 26.5),
])
pad20 = body21.newObject("PartDesign::Pad", "Pad019")
pad20.Profile = sketch20
pad20.Length = 43
doc.recompute()

chamfer11 = body21.newObject("PartDesign::Chamfer", "Chamfer010")
chamfer11.Base = (pad20, edges_at(pad20, [(43, 74.5, -13), (43, 74.5, 30)]))
chamfer11.Size = 1
doc.recompute()

boolean10 = body21.newObject("PartDesign::Boolean", "Boolean009")
boolean10.Type = "Cut"
boolean10.addObjects([body20])
doc.recompute()

boolean11 = body21.newObject("PartDesign::Boolean", "Boolean010")
boolean11.Type = "Cut"
boolean11.addObjects([body19])
doc.recompute()

chamfer12 = body21.newObject("PartDesign::Chamfer", "Chamfer011")
chamfer12.Base = (boolean11, edges_at(boolean11, [(43, -26.5, 30)]))
chamfer12.Size = 9.5
doc.recompute()

chamfer13 = body21.newObject("PartDesign::Chamfer", "Chamfer012")
chamfer13.Base = (chamfer12, edges_at(chamfer12, [(43, -26.5, -8)]))
chamfer13.Size = 0.4
body22 = doc.addObject("PartDesign::Body", "Body021")

# Sketch on XY plane
sketch21 = body22.newObject("Sketcher::SketchObject", "Sketch020")
sketch21.AttachmentSupport = (doc.getObject("XY_Plane021"), [""])
sketch21.MapMode = "FlatFace"
sketch21.addGeometry(Part.Circle(V(-15, -11.5, 0), V(0, 0, 1), 3.1), False)
sketch21.addConstraint([
    Sketcher.Constraint("Diameter", 0, 6.3),
    Sketcher.Constraint("DistanceX", 0, 3, -1, 1, 15.0),
    Sketcher.Constraint("DistanceY", 0, 3, -1, 1, 11.5),
])
pad21 = body22.newObject("PartDesign::Pad", "Pad020")
pad21.Profile = sketch21
pad21.Length = 10
body23 = doc.addObject("PartDesign::Body", "Body022")
body23.AllowCompound = True

# Sketch on XY plane
sketch22 = body23.newObject("Sketcher::SketchObject", "Sketch021")
sketch22.AttachmentSupport = (doc.getObject("XY_Plane022"), [""])
sketch22.MapMode = "FlatFace"
sketch22.addGeometry(Part.Circle(V(-15, 15.5, 0), V(0, 0, 1), 3.1), False)
sketch22.addConstraint([
    Sketcher.Constraint("Diameter", 0, 6.3),
    Sketcher.Constraint("DistanceX", 0, 3, -1, 1, 15.0),
    Sketcher.Constraint("DistanceY", -1, 1, 0, 3, 15.5),
])
pad22 = body23.newObject("PartDesign::Pad", "Pad021")
pad22.Profile = sketch22
pad22.Length = 10
doc.recompute()

boolean12 = body23.newObject("PartDesign::Boolean", "Boolean011")
boolean12.Type = "Fuse"
boolean12.addObjects([body22])
body24 = doc.addObject("PartDesign::Body", "Body023")
body24.AllowCompound = True
doc.recompute()

body23.Placement = App.Placement(V(0, 0, -9), App.Rotation(V(0, 0, 1), 0))
boolean13 = body24.newObject("PartDesign::Boolean", "Boolean012")
boolean13.Type = "Fuse"
boolean13.addObjects([body23])
body25 = doc.addObject("PartDesign::Body", "Body024")

# Sketch on XY plane
sketch23 = body25.newObject("Sketcher::SketchObject", "Sketch022")
sketch23.AttachmentSupport = (doc.getObject("XY_Plane024"), [""])
sketch23.MapMode = "FlatFace"
sketch23.AttachmentOffset = App.Placement(V(0, 0, -8), App.Rotation())
add_polygon(sketch23, [(0, 22), (0, -22), (40, -22), (40, 22)])  # lines 0-3
sketch23.addConstraint([
    Sketcher.Constraint("Vertical", 0),
    Sketcher.Constraint("Horizontal", 1),
    Sketcher.Constraint("Vertical", 2),
    Sketcher.Constraint("Horizontal", 3),
    Sketcher.Constraint("Symmetric", 0, 2, 3, 2, -1, 1),
    Sketcher.Constraint("DistanceY", 0, 2, 0, 1, 43.0),
    Sketcher.Constraint("DistanceX", 1, 1, 1, 2, 40.5),
])
pad23 = body25.newObject("PartDesign::Pad", "Pad022")
pad23.Profile = sketch23
pad23.Length = 8
body26 = doc.addObject("PartDesign::Body", "Body025")

# Sketch on XY plane
sketch24 = body26.newObject("Sketcher::SketchObject", "Sketch023")
sketch24.AttachmentSupport = (doc.getObject("XY_Plane025"), [""])
sketch24.MapMode = "FlatFace"
sketch24.AttachmentOffset = App.Placement(V(0, 0, -8), App.Rotation())
add_polygon(sketch24, [(-27, 30), (-27, -26), (45, -26), (45, 30)])  # lines 0-3
sketch24.addConstraint([
    Sketcher.Constraint("Vertical", 0),
    Sketcher.Constraint("Horizontal", 1),
    Sketcher.Constraint("Vertical", 2),
    Sketcher.Constraint("Horizontal", 3),
    Sketcher.Constraint("DistanceX", 1, 1, 1, 2, 72.0),
    Sketcher.Constraint("DistanceY", 0, 2, 0, 1, 57.0),
    Sketcher.Constraint("DistanceX", 0, 2, -1, 1, 27.0),
    Sketcher.Constraint("DistanceY", 0, 2, -1, 1, 26.5),
])
pad24 = body26.newObject("PartDesign::Pad", "Pad023")
pad24.Profile = sketch24
pad24.Length = 8
doc.recompute()

fillet2 = body26.newObject("PartDesign::Fillet", "Fillet001")
fillet2.Base = (pad24, edges_at(pad24, [(-27, -26.5, -4), (-27, 30.5, -4)]))
fillet2.Radius = 3
doc.recompute()

boolean14 = body26.newObject("PartDesign::Boolean", "Boolean013")
boolean14.Type = "Cut"
boolean14.addObjects([body25])
doc.recompute()

chamfer14 = body26.newObject("PartDesign::Chamfer", "Chamfer013")
chamfer14.Base = (boolean14, edges_at(boolean14, [
    (-27, 2, -8),
    (-26.121, -25.621, -8),
    (-26.121, 29.621, -8),
    (10.5, -26.5, -8),
    (10.5, 30.5, -8),
]))
chamfer14.Size = 0.4
doc.recompute()

boolean15 = body26.newObject("PartDesign::Boolean", "Boolean014")
boolean15.Type = "Cut"
boolean15.addObjects([body24])
body27 = doc.addObject("PartDesign::Body", "Body026")

# Sketch on XY plane
sketch25 = body27.newObject("Sketcher::SketchObject", "Sketch024")
sketch25.AttachmentSupport = (doc.getObject("XY_Plane026"), [""])
sketch25.MapMode = "FlatFace"
add_polygon(sketch25, [(-19, 30), (-19, 20), (-11, 20), (-11, 30)])  # lines 0-3
sketch25.addConstraint([
    Sketcher.Constraint("Vertical", 0),
    Sketcher.Constraint("Horizontal", 1),
    Sketcher.Constraint("Vertical", 2),
    Sketcher.Constraint("Horizontal", 3),
    Sketcher.Constraint("DistanceY", 0, 2, 0, 1, 11.0),
    Sketcher.Constraint("DistanceX", 1, 1, 1, 2, 7.8),
    Sketcher.Constraint("DistanceX", 0, 2, -1, 1, 18.9),
    Sketcher.Constraint("DistanceY", -1, 1, 0, 2, 19.5),
])
pad25 = body27.newObject("PartDesign::Pad", "Pad024")
pad25.Profile = sketch25
pad25.Length = 2
body28 = doc.addObject("PartDesign::Body", "Body027")

# Sketch on XY plane
sketch26 = body28.newObject("Sketcher::SketchObject", "Sketch025")
sketch26.AttachmentSupport = (doc.getObject("XY_Plane027"), [""])
sketch26.MapMode = "FlatFace"
add_polygon(sketch26, [(-19, -16), (-19, -26), (-11, -26), (-11, -16)])  # lines 0-3
sketch26.addConstraint([
    Sketcher.Constraint("Vertical", 0),
    Sketcher.Constraint("Horizontal", 1),
    Sketcher.Constraint("Vertical", 2),
    Sketcher.Constraint("Horizontal", 3),
    Sketcher.Constraint("DistanceY", 0, 2, 0, 1, 11.0),
    Sketcher.Constraint("DistanceX", 1, 1, 1, 2, 7.8),
    Sketcher.Constraint("DistanceX", 0, 2, -1, 1, 18.9),
    Sketcher.Constraint("DistanceY", 0, 2, -1, 1, 26.5),
])
pad26 = body28.newObject("PartDesign::Pad", "Pad025")
pad26.Profile = sketch26
pad26.Length = 2
body29 = doc.addObject("PartDesign::Body", "Body028")
body29.AllowCompound = True

# Sketch on XY plane
sketch27 = body29.newObject("Sketcher::SketchObject", "Sketch026")
sketch27.AttachmentSupport = (doc.getObject("XY_Plane028"), [""])
sketch27.MapMode = "FlatFace"
add_polygon(sketch27, [(-19, 12), (-19, -8), (-11, -8), (-11, 12)])  # lines 0-3
sketch27.addConstraint([
    Sketcher.Constraint("Vertical", 0),
    Sketcher.Constraint("Horizontal", 1),
    Sketcher.Constraint("Vertical", 2),
    Sketcher.Constraint("Horizontal", 3),
    Sketcher.Constraint("DistanceY", 0, 2, 0, 1, 19.0),
    Sketcher.Constraint("DistanceX", 1, 1, 1, 2, 7.8),
    Sketcher.Constraint("DistanceX", 0, 2, -1, 1, 18.9),
    Sketcher.Constraint("DistanceY", 0, 2, -1, 1, 7.5),
])
pad27 = body29.newObject("PartDesign::Pad", "Pad026")
pad27.Profile = sketch27
pad27.Length = 2
doc.recompute()

boolean16 = body29.newObject("PartDesign::Boolean", "Boolean015")
boolean16.Type = "Fuse"
boolean16.addObjects([body27])
doc.recompute()

boolean17 = body29.newObject("PartDesign::Boolean", "Boolean016")
boolean17.Type = "Fuse"
boolean17.addObjects([body28])
body30 = doc.addObject("PartDesign::Body", "Body029")
body30.AllowCompound = True
doc.recompute()

body29.Placement = App.Placement(V(0, 0, -1), App.Rotation(V(0, 0, 1), 0))
boolean18 = body30.newObject("PartDesign::Boolean", "Boolean017")
boolean18.Type = "Fuse"
boolean18.addObjects([body29])
doc.recompute()

chamfer15 = body30.newObject("PartDesign::Chamfer", "Chamfer014")
chamfer15.Base = (boolean18, edges_at(boolean18, [(-11.1, 2, 1), (-11.1, 25, 1), (-11.1, -21, 1)]))
chamfer15.Size = 1
doc.recompute()

boolean19 = body30.newObject("PartDesign::Boolean", "Boolean018")
boolean19.Type = "Fuse"
boolean19.addObjects([body26])
doc.recompute()

boolean20 = body30.newObject("PartDesign::Boolean", "Boolean019")
boolean20.Type = "Fuse"
boolean20.addObjects([body18])
doc.recompute()

boolean21 = body30.newObject("PartDesign::Boolean", "Boolean020")
boolean21.Type = "Fuse"
boolean21.addObjects([body21])
doc.recompute()

boolean22 = body30.newObject("PartDesign::Boolean", "Boolean021")
boolean22.Type = "Cut"
boolean22.addObjects([body17])
doc.recompute()

boolean23 = body30.newObject("PartDesign::Boolean", "Boolean022")
boolean23.Type = "Cut"
boolean23.addObjects([body16])
doc.recompute()

boolean24 = body30.newObject("PartDesign::Boolean", "Boolean023")
boolean24.Type = "Fuse"
boolean24.addObjects([body12])
doc.recompute()

boolean25 = body30.newObject("PartDesign::Boolean", "Boolean024")
boolean25.Type = "Cut"
boolean25.addObjects([body10])
doc.recompute()

chamfer16 = body30.newObject("PartDesign::Chamfer", "Chamfer015")
chamfer16.Base = (boolean25, edges_at(boolean25, [(45.5, 0, 19.65), (45.5, 41, 11.5), (34, 41, 11.5)]))
chamfer16.Size = 0.4
doc.recompute()

boolean26 = body30.newObject("PartDesign::Boolean", "Boolean025")
boolean26.Type = "Fuse"
boolean26.addObjects([body9])
doc.recompute()

boolean27 = body30.newObject("PartDesign::Boolean", "Boolean026")
boolean27.Type = "Cut"
boolean27.addObjects([body6])
doc.recompute()

boolean28 = body30.newObject("PartDesign::Boolean", "Boolean027")
boolean28.Type = "Cut"
boolean28.addObjects([body3])
doc.recompute()

boolean29 = body30.newObject("PartDesign::Boolean", "Boolean028")
boolean29.Type = "Cut"
boolean29.addObjects([body])

doc.recompute()
